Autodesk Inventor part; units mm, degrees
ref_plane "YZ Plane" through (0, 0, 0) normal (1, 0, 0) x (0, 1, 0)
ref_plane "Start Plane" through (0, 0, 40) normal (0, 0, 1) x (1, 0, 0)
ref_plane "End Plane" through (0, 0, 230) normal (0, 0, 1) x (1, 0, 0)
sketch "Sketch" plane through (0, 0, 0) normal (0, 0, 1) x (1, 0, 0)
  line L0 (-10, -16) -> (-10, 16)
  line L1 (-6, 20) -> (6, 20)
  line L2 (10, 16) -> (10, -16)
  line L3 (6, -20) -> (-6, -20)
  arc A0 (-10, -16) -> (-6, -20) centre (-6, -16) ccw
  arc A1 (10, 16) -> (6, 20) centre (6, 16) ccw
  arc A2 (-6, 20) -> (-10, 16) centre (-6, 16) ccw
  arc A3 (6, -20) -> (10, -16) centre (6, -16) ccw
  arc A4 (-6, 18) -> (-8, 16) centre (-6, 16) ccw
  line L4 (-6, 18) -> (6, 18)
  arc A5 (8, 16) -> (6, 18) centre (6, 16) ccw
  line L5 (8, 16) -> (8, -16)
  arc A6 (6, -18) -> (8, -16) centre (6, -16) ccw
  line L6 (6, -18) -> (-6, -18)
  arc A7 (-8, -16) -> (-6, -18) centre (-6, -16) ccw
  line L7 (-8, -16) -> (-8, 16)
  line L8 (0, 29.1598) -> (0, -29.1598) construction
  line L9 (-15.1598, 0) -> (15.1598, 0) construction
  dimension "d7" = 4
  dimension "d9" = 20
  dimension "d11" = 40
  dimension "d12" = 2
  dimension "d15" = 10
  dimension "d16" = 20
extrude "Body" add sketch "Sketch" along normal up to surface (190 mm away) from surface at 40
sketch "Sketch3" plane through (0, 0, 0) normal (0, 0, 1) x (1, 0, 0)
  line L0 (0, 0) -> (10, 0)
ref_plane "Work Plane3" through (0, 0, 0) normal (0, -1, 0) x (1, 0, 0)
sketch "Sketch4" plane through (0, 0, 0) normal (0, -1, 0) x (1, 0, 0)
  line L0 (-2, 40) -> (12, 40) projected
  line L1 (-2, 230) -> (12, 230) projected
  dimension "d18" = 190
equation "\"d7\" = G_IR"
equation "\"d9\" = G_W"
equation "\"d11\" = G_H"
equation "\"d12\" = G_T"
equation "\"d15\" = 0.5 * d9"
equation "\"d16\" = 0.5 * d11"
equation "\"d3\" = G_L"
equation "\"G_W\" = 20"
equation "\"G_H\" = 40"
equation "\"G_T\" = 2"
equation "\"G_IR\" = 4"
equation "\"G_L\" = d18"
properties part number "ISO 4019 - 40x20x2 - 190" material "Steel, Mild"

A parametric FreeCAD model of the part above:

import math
import FreeCAD as App
import Part
import Sketcher

V = App.Vector

doc = App.newDocument("Part")
body = doc.addObject("PartDesign::Body", "Body")

# Sketch on XY plane
sketch1 = body.newObject("Sketcher::SketchObject", "Sketch")
sketch1.AttachmentSupport = (doc.getObject("XY_Plane"), [""])
sketch1.MapMode = "FlatFace"
sketch1.AttachmentOffset = App.Placement(V(0, 0, 40), App.Rotation())
sketch1.addGeometry([
    Part.LineSegment(V(-10, 16, 0), V(-10, -16, 0)),  # 0
    Part.ArcOfCircle(Part.Circle(V(-6, -16, 0), V(0, 0, 1), 4), math.radians(180), math.radians(270)),  # 1
    Part.LineSegment(V(-6, -20, 0), V(6, -20, 0)),  # 2
    Part.ArcOfCircle(Part.Circle(V(6, -16, 0), V(0, 0, 1), 4), math.radians(-90), math.radians(0)),  # 3
    Part.LineSegment(V(10, -16, 0), V(10, 16, 0)),  # 4
    Part.ArcOfCircle(Part.Circle(V(6, 16, 0), V(0, 0, 1), 4), math.radians(0), math.radians(90)),  # 5
    Part.LineSegment(V(6, 20, 0), V(-6, 20, 0)),  # 6
    Part.ArcOfCircle(Part.Circle(V(-6, 16, 0), V(0, 0, 1), 4), math.radians(90), math.radians(180)),  # 7
    Part.ArcOfCircle(Part.Circle(V(-6, 16, 0), V(0, 0, 1), 2), math.radians(90), math.radians(180)),  # 8
    Part.LineSegment(V(-6, 18, 0), V(6, 18, 0)),  # 9
    Part.ArcOfCircle(Part.Circle(V(6, 16, 0), V(0, 0, 1), 2), math.radians(0), math.radians(90)),  # 10
    Part.LineSegment(V(8, 16, 0), V(8, -16, 0)),  # 11
    Part.ArcOfCircle(Part.Circle(V(6, -16, 0), V(0, 0, 1), 2), math.radians(-90), math.radians(0)),  # 12
    Part.LineSegment(V(6, -18, 0), V(-6, -18, 0)),  # 13
    Part.ArcOfCircle(Part.Circle(V(-6, -16, 0), V(0, 0, 1), 2), math.radians(180), math.radians(270)),  # 14
    Part.LineSegment(V(-8, -16, 0), V(-8, 16, 0)),  # 15
], False)
sketch1.addConstraint([
    Sketcher.Constraint("Tangent", 0, 2, 1, 1),
    Sketcher.Constraint("Tangent", 1, 2, 2, 1),
    Sketcher.Constraint("Tangent", 2, 2, 3, 1),
    Sketcher.Constraint("Tangent", 3, 2, 4, 1),
    Sketcher.Constraint("Tangent", 4, 2, 5, 1),
    Sketcher.Constraint("Tangent", 5, 2, 6, 1),
    Sketcher.Constraint("Tangent", 6, 2, 7, 1),
    Sketcher.Constraint("Tangent", 7, 2, 0, 1),
    Sketcher.Constraint("Tangent", 8, 1, 9, 1),
    Sketcher.Constraint("Tangent", 9, 2, 10, 2),
    Sketcher.Constraint("Tangent", 10, 1, 11, 1),
    Sketcher.Constraint("Tangent", 11, 2, 12, 2),
    Sketcher.Constraint("Tangent", 12, 1, 13, 1),
    Sketcher.Constraint("Tangent", 13, 2, 14, 2),
    Sketcher.Constraint("Tangent", 14, 1, 15, 1),
    Sketcher.Constraint("Tangent", 15, 2, 8, 2),
    Sketcher.Constraint("Vertical", 0),
    Sketcher.Constraint("Horizontal", 2),
    Sketcher.Constraint("Vertical", 4),
    Sketcher.Constraint("Horizontal", 6),
    Sketcher.Constraint("Horizontal", 9),
    Sketcher.Constraint("Vertical", 11),
    Sketcher.Constraint("Horizontal", 13),
    Sketcher.Constraint("Vertical", 15),
    Sketcher.Constraint("Coincident", 8, 3, 7, 3),
    Sketcher.Constraint("Coincident", 10, 3, 5, 3),
    Sketcher.Constraint("Coincident", 12, 3, 3, 3),
    Sketcher.Constraint("Equal", 1, 3),
    Sketcher.Constraint("Equal", 3, 5),
    Sketcher.Constraint("Equal", 5, 7),
    Sketcher.Constraint("Equal", 12, 14),
    Sketcher.Constraint("Symmetric", 1, 3, 5, 3, -1, 1),
    Sketcher.Constraint("Radius", 1, 4.0),
    Sketcher.Constraint("Radius", 8, 2.0),
    Sketcher.Constraint("DistanceX", 0, 2, -1, 1, 10.0),
    Sketcher.Constraint("DistanceY", 1, 2, -1, 1, 20.0),
])
pad1 = body.newObject("PartDesign::Pad", "Pad")
pad1.Profile = sketch1
pad1.Length = 190

doc.recompute()
